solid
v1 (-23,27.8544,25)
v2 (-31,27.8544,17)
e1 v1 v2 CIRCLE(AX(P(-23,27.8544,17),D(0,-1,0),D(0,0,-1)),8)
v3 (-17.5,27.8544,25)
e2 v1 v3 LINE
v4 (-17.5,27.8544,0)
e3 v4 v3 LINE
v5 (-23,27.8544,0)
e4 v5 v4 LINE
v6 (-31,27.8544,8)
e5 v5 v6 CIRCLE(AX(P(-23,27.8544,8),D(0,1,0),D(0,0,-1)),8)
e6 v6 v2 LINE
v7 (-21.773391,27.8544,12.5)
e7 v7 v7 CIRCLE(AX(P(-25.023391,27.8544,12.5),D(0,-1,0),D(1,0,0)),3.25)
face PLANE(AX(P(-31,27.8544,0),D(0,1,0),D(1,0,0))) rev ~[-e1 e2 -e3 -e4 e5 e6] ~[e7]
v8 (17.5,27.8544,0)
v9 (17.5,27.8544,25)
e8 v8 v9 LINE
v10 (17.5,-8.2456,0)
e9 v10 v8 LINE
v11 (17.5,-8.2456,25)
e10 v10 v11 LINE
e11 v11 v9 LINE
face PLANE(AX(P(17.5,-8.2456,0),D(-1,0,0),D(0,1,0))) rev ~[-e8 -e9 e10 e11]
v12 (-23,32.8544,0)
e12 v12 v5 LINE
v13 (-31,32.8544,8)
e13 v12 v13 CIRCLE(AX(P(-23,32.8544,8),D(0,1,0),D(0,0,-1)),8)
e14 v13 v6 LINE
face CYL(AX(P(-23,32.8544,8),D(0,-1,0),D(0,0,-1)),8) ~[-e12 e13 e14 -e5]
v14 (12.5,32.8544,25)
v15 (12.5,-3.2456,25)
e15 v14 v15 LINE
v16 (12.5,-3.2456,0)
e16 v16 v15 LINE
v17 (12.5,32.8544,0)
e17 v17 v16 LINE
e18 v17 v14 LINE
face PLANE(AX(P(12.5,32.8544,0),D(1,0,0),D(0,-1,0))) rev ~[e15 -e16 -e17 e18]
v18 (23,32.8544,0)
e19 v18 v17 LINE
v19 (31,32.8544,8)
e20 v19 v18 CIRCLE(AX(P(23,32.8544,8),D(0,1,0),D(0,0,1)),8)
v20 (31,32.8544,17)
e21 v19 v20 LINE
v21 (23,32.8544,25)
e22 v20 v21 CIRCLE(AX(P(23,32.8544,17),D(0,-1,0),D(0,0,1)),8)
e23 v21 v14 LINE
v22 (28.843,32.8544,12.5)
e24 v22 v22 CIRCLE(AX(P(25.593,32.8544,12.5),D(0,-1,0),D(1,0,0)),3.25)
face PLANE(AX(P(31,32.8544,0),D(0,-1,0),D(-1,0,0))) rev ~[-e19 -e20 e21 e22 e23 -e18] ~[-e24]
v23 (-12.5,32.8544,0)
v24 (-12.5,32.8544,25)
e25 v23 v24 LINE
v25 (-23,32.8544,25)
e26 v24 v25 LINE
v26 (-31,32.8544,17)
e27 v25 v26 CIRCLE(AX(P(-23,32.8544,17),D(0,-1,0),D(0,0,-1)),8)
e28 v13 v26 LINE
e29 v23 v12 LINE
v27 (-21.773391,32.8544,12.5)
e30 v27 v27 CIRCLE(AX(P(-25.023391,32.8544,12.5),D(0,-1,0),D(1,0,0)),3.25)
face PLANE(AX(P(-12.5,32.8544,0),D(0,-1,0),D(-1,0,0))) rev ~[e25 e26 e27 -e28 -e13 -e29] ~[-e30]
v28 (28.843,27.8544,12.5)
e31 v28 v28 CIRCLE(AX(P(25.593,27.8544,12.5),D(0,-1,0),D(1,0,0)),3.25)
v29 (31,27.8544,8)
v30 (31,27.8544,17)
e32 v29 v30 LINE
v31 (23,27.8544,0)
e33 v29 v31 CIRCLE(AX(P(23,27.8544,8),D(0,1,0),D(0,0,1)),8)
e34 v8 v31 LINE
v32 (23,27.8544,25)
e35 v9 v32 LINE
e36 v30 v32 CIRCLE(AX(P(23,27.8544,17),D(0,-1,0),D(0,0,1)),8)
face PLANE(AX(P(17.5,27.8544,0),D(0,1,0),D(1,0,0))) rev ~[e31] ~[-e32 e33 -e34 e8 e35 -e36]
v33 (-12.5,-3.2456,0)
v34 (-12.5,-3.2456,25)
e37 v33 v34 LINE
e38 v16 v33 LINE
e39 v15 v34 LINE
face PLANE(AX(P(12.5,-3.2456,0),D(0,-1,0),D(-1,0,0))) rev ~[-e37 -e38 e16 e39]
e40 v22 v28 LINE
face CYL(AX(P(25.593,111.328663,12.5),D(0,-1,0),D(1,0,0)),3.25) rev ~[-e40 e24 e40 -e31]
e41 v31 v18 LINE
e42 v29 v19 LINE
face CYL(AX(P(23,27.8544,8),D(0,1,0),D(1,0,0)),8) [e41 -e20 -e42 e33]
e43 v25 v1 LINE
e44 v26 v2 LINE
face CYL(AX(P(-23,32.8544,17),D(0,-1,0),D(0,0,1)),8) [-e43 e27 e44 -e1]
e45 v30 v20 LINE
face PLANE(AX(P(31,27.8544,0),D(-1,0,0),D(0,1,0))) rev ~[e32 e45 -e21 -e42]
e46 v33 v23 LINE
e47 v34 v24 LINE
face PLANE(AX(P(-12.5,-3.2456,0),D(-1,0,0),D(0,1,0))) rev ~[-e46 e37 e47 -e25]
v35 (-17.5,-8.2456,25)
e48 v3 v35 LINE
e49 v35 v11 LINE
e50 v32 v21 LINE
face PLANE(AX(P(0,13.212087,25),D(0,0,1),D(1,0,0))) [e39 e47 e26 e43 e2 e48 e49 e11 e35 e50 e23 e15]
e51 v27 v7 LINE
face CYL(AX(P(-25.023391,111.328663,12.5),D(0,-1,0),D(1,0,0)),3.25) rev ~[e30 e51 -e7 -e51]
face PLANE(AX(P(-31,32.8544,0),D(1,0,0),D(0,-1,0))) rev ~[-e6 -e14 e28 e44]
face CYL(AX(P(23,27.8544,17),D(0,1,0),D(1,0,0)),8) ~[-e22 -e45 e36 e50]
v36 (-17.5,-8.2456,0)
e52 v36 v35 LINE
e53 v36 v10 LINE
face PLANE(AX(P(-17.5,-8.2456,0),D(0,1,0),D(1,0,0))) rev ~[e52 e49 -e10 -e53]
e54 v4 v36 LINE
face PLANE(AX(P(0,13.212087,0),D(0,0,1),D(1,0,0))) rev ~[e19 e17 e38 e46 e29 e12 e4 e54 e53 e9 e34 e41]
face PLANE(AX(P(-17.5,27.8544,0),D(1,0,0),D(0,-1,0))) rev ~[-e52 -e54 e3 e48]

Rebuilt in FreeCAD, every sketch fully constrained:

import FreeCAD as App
import Part
import Sketcher

V = App.Vector
Q = App.Units.Quantity


def edges_at(feature, points):
    """Names of the edges that pass closest to the given points."""
    edges = feature.Shape.Edges
    near = lambda p: min(range(len(edges)), key=lambda i: edges[i].distToShape(Part.Vertex(*p))[0])
    return sorted({f"Edge{near(p) + 1}" for p in points})


def add_polygon(sketch, points):
    """Adds a closed chain of lines whose ends are joined by coincident constraints."""
    first, n = sketch.GeometryCount, len(points)
    for a, b in zip(points, points[1:] + points[:1]):
        sketch.addGeometry(Part.LineSegment(App.Vector(*a, 0), App.Vector(*b, 0)), False)
    for i in range(n):
        sketch.addConstraint(Sketcher.Constraint("Coincident", first + i, 2, first + (i + 1) % n, 1))

doc = App.newDocument("Part")
body = doc.addObject("PartDesign::Body", "Body")

sketch1 = doc.addObject("Sketcher::SketchObject", "Sketch")
body.addObject(sketch1)
sketch1.AttachmentSupport = (doc.XY_Plane, [""])
sketch1.MapMode = "FlatFace"
add_polygon(sketch1, [(31, 27.8544), (31, 32.8544), (12.5, 32.8544), (12.5, -3.2456), (-12.5, -3.2456), (-12.5, 32.8544), (-31, 32.8544), (-31, 27.8544), (-17.5, 27.8544), (-17.5, -8.2456), (17.5, -8.2456), (17.5, 27.8544)])
sketch1.addConstraint(Sketcher.Constraint("Vertical", 0))
sketch1.addConstraint(Sketcher.Constraint("Horizontal", 1))
sketch1.addConstraint(Sketcher.Constraint("Vertical", 2))
sketch1.addConstraint(Sketcher.Constraint("Horizontal", 3))
sketch1.addConstraint(Sketcher.Constraint("Vertical", 4))
sketch1.addConstraint(Sketcher.Constraint("Horizontal", 5))
sketch1.addConstraint(Sketcher.Constraint("Vertical", 6))
sketch1.addConstraint(Sketcher.Constraint("Horizontal", 7))
sketch1.addConstraint(Sketcher.Constraint("Vertical", 8))
sketch1.addConstraint(Sketcher.Constraint("Horizontal", 9))
sketch1.addConstraint(Sketcher.Constraint("Vertical", 10))
sketch1.addConstraint(Sketcher.Constraint("Horizontal", 11))
sketch1.addConstraint(Sketcher.Constraint("Symmetric", 1, 2, 4, 2, -2))
sketch1.addConstraint(Sketcher.Constraint("Symmetric", 7, 2, 10, 2, -2))
sketch1.addConstraint(Sketcher.Constraint("Equal", 1, 5))
sketch1.addConstraint(Sketcher.Constraint("Equal", 4, 8))
sketch1.addConstraint(Sketcher.Constraint("DistanceX", 3, 2, 3, 1, Q("25 mm")))
sketch1.addConstraint(Sketcher.Constraint("DistanceX", 9, 1, 9, 2, Q("35 mm")))
sketch1.addConstraint(Sketcher.Constraint("DistanceY", 0, 1, 0, 2, Q("5 mm")))
sketch1.addConstraint(Sketcher.Constraint("DistanceX", 1, 2, 1, 1, Q("18.5 mm")))
sketch1.addConstraint(Sketcher.Constraint("DistanceY", 2, 2, 2, 1, Q("36.1 mm")))
sketch1.addConstraint(Sketcher.Constraint("DistanceY", -1, 1, 0, 2, Q("32.8544 mm")))
pad1 = doc.addObject("PartDesign::Pad", "Pad")
body.addObject(pad1)
pad1.Profile = sketch1
pad1.Length = 25

sketch2 = doc.addObject("Sketcher::SketchObject", "Sketch001")
body.addObject(sketch2)
sketch2.AttachmentSupport = (doc.XZ_Plane, [""])
sketch2.MapMode = "FlatFace"
sketch2.AttachmentOffset = App.Placement(V(0, 0, -32.8544), App.Rotation())
sketch2.addGeometry(Part.Circle(V(-25.023391, 12.5, 0), V(0, 0, 1), 3.25), False)
sketch2.addConstraint(Sketcher.Constraint("Diameter", 0, Q("6.5 mm")))
sketch2.addConstraint(Sketcher.Constraint("DistanceY", -1, 1, 0, 3, Q("12.5 mm")))
sketch2.addConstraint(Sketcher.Constraint("DistanceX", 0, 3, -1, 1, Q("25.023391 mm")))
doc.recompute()
hole = doc.addObject("PartDesign::Hole", "Hole")
body.addObject(hole)
hole.Profile = sketch2
hole.ThreadType = "None"
hole.Diameter = 6.5
hole.DepthType = "ThroughAll"
hole.Reversed = True

sketch3 = doc.addObject("Sketcher::SketchObject", "Sketch002")
body.addObject(sketch3)
sketch3.AttachmentSupport = (doc.XZ_Plane, [""])
sketch3.MapMode = "FlatFace"
sketch3.AttachmentOffset = App.Placement(V(0, 0, -32.8544), App.Rotation())
sketch3.addGeometry(Part.Circle(V(25.593, 12.5, 0), V(0, 0, 1), 3.25), False)
sketch3.addConstraint(Sketcher.Constraint("Diameter", 0, Q("6.5 mm")))
sketch3.addConstraint(Sketcher.Constraint("DistanceY", -1, 1, 0, 3, Q("12.5 mm")))
sketch3.addConstraint(Sketcher.Constraint("DistanceX", -1, 1, 0, 3, Q("25.593 mm")))
doc.recompute()
hole2 = doc.addObject("PartDesign::Hole", "Hole001")
body.addObject(hole2)
hole2.Profile = sketch3
hole2.ThreadType = "None"
hole2.Diameter = 6.5
hole2.DepthType = "ThroughAll"
hole2.Reversed = True
doc.recompute()

fillet = doc.addObject("PartDesign::Fillet", "Fillet")
body.addObject(fillet)
fillet.Base = (hole2, edges_at(hole2, [
    (-31, 30.354, 25),
    (-31, 30.354, 0),
    (31, 30.354, 25),
    (31, 30.354, 0),
]))
fillet.Radius = 8

doc.recompute()
